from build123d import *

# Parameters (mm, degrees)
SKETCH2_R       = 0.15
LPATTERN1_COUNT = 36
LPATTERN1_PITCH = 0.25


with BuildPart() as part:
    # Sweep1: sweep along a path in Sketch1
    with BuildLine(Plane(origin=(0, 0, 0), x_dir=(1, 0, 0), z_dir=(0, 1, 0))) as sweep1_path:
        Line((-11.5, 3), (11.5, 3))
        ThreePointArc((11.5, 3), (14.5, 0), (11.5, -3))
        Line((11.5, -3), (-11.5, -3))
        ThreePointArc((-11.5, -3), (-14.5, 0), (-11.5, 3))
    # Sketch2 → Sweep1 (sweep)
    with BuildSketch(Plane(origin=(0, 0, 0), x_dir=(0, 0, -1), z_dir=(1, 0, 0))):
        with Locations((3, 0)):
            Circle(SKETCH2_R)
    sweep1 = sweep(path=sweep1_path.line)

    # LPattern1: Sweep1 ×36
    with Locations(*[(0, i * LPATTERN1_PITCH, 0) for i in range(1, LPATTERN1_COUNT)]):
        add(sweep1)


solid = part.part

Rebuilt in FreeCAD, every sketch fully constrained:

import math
import FreeCAD as App
import Part
import Sketcher
from FreeCAD import Vector
Q = App.Units.Quantity

doc = App.newDocument("Part")
body = doc.addObject("PartDesign::Body", "Body")

sketch1 = body.newObject("Sketcher::SketchObject", "Sketch")
sketch1.AttachmentSupport = (doc.getObject("YZ_Plane"), [""])
sketch1.MapMode = "FlatFace"
sketch1.addGeometry(Part.Circle(Vector(0, -3, 0), Vector(0, 0, 1), 0.15), False)
sketch1.addConstraint([
    Sketcher.Constraint("PointOnObject", 0, 3, -2),
    Sketcher.Constraint("Diameter", 0, Q("0.3 mm")),
    Sketcher.Constraint("DistanceY", 0, 3, -1, 1, Q("3 mm")),
])

sketch2 = body.newObject("Sketcher::SketchObject", "Sketch001")
sketch2.AttachmentSupport = (doc.getObject("XZ_Plane"), [""])
sketch2.MapMode = "FlatFace"
sketch2.addGeometry([
    Part.LineSegment(Vector(-11.5, -3, 0), Vector(11.5, -3, 0)),
    Part.ArcOfCircle(Part.Circle(Vector(11.5, 0, 0), Vector(0, 0, 1), 3), math.radians(-90), math.radians(90)),
    Part.LineSegment(Vector(11.5, 3, 0), Vector(-11.5, 3, 0)),
    Part.ArcOfCircle(Part.Circle(Vector(-11.5, 0, 0), Vector(0, 0, 1), 3), math.radians(90), math.radians(270)),
], False)
sketch2.addConstraint([
    Sketcher.Constraint("Tangent", 0, 2, 1, 1),
    Sketcher.Constraint("Tangent", 1, 2, 2, 1),
    Sketcher.Constraint("Tangent", 2, 2, 3, 1),
    Sketcher.Constraint("Tangent", 3, 2, 0, 1),
    Sketcher.Constraint("Horizontal", 0),
    Sketcher.Constraint("Horizontal", 2),
    Sketcher.Constraint("Symmetric", 1, 3, 3, 3, -1, 1),
    Sketcher.Constraint("Radius", 1, Q("3 mm")),
    Sketcher.Constraint("DistanceX", 0, 1, 0, 2, Q("23 mm")),
])
doc.recompute()

additivepipe = body.newObject("PartDesign::AdditivePipe", "AdditivePipe")
additivepipe.Profile = sketch1
additivepipe.Spine = (sketch2, ["Edge1", "Edge2", "Edge3", "Edge4"])
doc.recompute()

linearpattern = body.newObject("PartDesign::LinearPattern", "LinearPattern")
linearpattern.Originals = [additivepipe]
linearpattern.Direction = (doc.getObject("Y_Axis"), [""])
linearpattern.Mode = "offset"
linearpattern.Offset = 0.25
linearpattern.Occurrences = 36
body.Tip = linearpattern

doc.recompute()
